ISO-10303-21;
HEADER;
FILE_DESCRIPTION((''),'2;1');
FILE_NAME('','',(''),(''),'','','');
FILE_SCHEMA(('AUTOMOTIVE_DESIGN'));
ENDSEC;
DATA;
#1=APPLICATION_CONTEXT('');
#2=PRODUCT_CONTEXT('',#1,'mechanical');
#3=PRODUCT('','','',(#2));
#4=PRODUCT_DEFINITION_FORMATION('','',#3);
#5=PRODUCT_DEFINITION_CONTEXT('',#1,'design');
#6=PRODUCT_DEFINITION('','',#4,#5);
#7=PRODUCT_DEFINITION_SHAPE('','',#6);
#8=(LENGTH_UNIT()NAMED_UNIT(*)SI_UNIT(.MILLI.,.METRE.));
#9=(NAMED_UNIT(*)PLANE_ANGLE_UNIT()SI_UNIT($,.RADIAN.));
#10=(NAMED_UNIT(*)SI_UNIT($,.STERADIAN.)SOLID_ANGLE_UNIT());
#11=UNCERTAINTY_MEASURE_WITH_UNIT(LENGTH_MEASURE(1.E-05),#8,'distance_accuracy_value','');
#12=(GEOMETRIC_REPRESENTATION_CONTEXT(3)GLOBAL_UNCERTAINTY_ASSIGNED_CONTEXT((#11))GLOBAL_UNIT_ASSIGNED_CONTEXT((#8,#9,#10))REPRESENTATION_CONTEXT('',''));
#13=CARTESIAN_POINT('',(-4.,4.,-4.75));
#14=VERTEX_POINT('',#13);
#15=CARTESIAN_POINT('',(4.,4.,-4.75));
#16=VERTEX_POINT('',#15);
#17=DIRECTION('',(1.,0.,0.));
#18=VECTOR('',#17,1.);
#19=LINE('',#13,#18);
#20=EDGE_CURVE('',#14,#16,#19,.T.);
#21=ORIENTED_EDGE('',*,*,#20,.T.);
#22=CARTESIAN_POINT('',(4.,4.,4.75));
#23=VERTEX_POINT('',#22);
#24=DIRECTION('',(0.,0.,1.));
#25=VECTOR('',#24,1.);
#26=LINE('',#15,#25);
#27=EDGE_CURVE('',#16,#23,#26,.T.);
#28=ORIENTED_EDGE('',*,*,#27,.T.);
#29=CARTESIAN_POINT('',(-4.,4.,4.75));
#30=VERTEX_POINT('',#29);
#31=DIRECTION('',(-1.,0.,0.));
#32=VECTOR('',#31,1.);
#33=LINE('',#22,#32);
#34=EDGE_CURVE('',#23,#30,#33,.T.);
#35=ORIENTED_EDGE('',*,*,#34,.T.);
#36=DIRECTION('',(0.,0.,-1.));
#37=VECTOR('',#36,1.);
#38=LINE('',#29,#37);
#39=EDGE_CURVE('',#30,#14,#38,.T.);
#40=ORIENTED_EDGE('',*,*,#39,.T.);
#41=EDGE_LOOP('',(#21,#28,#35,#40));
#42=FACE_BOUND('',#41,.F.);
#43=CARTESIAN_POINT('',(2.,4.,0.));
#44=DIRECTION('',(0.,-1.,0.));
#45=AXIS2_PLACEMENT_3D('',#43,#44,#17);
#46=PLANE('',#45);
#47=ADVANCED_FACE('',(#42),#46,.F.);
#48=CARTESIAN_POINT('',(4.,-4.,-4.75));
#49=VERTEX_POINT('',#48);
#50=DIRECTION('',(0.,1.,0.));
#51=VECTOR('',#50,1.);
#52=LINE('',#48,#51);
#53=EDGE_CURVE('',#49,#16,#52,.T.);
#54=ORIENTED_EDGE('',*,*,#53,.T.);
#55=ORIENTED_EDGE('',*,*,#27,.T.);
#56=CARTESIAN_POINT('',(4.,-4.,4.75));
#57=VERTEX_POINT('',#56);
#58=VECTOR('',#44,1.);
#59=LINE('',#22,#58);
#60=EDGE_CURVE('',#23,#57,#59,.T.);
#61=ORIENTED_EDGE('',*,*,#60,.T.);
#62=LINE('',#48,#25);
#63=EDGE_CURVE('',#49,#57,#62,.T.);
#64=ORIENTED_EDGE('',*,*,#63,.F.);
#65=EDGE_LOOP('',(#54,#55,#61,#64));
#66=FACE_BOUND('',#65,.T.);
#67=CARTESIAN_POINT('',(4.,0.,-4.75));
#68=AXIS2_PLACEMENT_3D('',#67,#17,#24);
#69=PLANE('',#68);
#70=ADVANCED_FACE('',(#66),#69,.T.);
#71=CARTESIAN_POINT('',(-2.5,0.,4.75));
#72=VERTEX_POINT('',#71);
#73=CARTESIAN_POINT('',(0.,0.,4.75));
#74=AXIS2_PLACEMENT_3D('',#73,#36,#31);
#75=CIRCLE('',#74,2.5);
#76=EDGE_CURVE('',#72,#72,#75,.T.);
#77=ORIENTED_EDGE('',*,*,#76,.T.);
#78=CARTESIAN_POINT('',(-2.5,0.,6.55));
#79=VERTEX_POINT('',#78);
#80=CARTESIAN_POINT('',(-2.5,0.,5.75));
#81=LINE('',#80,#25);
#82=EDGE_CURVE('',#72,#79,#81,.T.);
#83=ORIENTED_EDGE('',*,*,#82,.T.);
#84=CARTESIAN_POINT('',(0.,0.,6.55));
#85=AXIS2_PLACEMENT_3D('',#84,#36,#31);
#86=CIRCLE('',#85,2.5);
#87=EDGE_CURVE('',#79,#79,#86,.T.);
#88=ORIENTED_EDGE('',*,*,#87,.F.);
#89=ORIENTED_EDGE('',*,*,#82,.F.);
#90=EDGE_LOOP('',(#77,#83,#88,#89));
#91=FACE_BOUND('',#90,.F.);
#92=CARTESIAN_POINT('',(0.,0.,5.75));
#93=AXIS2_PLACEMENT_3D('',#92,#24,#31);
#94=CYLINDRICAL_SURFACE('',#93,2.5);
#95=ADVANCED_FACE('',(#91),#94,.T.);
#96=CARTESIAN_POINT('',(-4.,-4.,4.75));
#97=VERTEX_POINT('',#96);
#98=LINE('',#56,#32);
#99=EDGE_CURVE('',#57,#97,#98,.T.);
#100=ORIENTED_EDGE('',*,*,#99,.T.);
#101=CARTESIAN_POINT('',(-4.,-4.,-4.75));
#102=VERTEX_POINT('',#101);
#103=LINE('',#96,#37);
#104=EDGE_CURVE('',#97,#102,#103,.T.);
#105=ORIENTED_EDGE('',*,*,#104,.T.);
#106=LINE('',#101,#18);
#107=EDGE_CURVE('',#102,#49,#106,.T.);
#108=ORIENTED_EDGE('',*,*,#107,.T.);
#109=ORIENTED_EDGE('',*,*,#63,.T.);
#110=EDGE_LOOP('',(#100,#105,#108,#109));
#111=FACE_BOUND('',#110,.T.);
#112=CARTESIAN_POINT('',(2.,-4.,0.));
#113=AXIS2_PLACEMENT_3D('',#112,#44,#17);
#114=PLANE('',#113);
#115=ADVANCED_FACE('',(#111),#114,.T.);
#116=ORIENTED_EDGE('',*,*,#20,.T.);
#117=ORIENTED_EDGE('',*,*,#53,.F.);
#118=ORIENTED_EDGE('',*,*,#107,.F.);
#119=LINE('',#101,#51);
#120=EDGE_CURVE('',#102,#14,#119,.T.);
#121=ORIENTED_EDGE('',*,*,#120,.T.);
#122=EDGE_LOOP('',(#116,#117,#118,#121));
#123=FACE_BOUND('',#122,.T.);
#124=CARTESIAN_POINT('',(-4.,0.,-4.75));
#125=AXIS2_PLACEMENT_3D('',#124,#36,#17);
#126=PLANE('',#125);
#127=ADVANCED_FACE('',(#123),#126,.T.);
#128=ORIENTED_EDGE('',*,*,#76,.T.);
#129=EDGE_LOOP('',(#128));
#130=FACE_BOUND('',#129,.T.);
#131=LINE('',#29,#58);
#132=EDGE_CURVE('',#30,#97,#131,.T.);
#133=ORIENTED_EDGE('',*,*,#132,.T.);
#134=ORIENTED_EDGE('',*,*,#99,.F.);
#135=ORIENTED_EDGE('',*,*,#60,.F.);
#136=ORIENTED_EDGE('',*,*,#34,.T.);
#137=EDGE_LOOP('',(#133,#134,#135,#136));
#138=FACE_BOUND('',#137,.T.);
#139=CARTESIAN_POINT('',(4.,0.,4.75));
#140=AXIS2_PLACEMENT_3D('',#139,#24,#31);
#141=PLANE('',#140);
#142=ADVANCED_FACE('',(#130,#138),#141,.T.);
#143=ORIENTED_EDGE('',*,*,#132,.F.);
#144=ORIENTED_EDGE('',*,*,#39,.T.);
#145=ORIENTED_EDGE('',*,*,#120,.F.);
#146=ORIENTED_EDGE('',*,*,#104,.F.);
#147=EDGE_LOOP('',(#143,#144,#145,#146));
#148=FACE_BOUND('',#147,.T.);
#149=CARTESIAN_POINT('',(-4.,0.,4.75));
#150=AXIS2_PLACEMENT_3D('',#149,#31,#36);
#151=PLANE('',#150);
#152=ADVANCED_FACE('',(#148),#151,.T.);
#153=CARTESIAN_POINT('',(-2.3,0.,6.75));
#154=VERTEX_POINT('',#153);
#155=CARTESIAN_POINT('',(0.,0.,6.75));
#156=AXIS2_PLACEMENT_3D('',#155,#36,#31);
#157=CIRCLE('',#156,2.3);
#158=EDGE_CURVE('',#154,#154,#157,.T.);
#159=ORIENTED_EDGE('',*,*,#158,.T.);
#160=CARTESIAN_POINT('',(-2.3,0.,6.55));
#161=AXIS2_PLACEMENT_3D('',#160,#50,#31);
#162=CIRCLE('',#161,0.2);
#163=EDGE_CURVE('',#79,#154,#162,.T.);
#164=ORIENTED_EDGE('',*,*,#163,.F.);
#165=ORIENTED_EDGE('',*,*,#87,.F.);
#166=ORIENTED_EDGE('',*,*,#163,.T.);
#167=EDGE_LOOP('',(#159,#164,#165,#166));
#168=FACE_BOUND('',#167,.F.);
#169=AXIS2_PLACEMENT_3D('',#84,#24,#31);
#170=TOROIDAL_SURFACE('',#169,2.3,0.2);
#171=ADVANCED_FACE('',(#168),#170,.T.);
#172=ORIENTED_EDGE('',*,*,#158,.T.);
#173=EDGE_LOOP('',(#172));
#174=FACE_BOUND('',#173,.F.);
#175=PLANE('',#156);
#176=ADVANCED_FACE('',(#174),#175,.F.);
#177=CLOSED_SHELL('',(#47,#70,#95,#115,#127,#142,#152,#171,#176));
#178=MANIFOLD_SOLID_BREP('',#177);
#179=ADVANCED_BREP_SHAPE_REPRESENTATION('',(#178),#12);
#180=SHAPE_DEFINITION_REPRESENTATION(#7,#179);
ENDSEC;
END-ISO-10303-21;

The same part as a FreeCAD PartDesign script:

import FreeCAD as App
import Part
import Sketcher

V = App.Vector


def edges_at(feature, points):
    """Names of the edges that pass closest to the given points."""
    edges = feature.Shape.Edges
    near = lambda p: min(range(len(edges)), key=lambda i: edges[i].distToShape(Part.Vertex(*p))[0])
    return sorted({f"Edge{near(p) + 1}" for p in points})


def add_polygon(sketch, points):
    """Adds a closed chain of lines whose ends are joined by coincident constraints."""
    first, n = sketch.GeometryCount, len(points)
    for a, b in zip(points, points[1:] + points[:1]):
        sketch.addGeometry(Part.LineSegment(App.Vector(*a, 0), App.Vector(*b, 0)), False)
    for i in range(n):
        sketch.addConstraint(Sketcher.Constraint("Coincident", first + i, 2, first + (i + 1) % n, 1))

doc = App.newDocument("Part")
body = doc.addObject("PartDesign::Body", "Body")

sketch1 = body.newObject("Sketcher::SketchObject", "Sketch")
sketch1.AttachmentSupport = (doc.getObject("XZ_Plane"), [""])
sketch1.MapMode = "FlatFace"
add_polygon(sketch1, [(-2.5, 6.8), (-2.5, 4.8), (0, 4.8), (0, 6.8)])
sketch1.addConstraint([
    Sketcher.Constraint("Vertical", 0),
    Sketcher.Constraint("Horizontal", 1),
    Sketcher.Constraint("Vertical", 2),
    Sketcher.Constraint("Horizontal", 3),
    Sketcher.Constraint("PointOnObject", 1, 2, -2),
    Sketcher.Constraint("DistanceY", 0, 2, 0, 1, 2.0),
    Sketcher.Constraint("DistanceX", 1, 1, 1, 2, 2.5),
    Sketcher.Constraint("DistanceY", -1, 1, 0, 2, 4.75),
])
revolution = body.newObject("PartDesign::Revolution", "Revolution")
revolution.Profile = sketch1
revolution.ReferenceAxis = (sketch1, ["V_Axis"])
revolution.Angle = 360

sketch2 = body.newObject("Sketcher::SketchObject", "Sketch001")
sketch2.AttachmentSupport = (doc.getObject("XZ_Plane"), [""])
sketch2.MapMode = "FlatFace"
add_polygon(sketch2, [(4, -5), (4, 5), (-4, 5), (-4, -5)])
sketch2.addConstraint([
    Sketcher.Constraint("Vertical", 0),
    Sketcher.Constraint("Horizontal", 1),
    Sketcher.Constraint("Vertical", 2),
    Sketcher.Constraint("Horizontal", 3),
    Sketcher.Constraint("Symmetric", 0, 2, 2, 2, -1, 1),
    Sketcher.Constraint("DistanceX", 1, 2, 1, 1, 8.0),
    Sketcher.Constraint("DistanceY", 0, 1, 0, 2, 9.5),
])
pad1 = body.newObject("PartDesign::Pad", "Pad")
pad1.Profile = sketch2
pad1.Length = 8
pad1.Midplane = True
doc.recompute()

fillet = body.newObject("PartDesign::Fillet", "Fillet")
fillet.Base = (pad1, edges_at(pad1, [(2.5, 0, 6.75)]))
fillet.Radius = 0.2

doc.recompute()
